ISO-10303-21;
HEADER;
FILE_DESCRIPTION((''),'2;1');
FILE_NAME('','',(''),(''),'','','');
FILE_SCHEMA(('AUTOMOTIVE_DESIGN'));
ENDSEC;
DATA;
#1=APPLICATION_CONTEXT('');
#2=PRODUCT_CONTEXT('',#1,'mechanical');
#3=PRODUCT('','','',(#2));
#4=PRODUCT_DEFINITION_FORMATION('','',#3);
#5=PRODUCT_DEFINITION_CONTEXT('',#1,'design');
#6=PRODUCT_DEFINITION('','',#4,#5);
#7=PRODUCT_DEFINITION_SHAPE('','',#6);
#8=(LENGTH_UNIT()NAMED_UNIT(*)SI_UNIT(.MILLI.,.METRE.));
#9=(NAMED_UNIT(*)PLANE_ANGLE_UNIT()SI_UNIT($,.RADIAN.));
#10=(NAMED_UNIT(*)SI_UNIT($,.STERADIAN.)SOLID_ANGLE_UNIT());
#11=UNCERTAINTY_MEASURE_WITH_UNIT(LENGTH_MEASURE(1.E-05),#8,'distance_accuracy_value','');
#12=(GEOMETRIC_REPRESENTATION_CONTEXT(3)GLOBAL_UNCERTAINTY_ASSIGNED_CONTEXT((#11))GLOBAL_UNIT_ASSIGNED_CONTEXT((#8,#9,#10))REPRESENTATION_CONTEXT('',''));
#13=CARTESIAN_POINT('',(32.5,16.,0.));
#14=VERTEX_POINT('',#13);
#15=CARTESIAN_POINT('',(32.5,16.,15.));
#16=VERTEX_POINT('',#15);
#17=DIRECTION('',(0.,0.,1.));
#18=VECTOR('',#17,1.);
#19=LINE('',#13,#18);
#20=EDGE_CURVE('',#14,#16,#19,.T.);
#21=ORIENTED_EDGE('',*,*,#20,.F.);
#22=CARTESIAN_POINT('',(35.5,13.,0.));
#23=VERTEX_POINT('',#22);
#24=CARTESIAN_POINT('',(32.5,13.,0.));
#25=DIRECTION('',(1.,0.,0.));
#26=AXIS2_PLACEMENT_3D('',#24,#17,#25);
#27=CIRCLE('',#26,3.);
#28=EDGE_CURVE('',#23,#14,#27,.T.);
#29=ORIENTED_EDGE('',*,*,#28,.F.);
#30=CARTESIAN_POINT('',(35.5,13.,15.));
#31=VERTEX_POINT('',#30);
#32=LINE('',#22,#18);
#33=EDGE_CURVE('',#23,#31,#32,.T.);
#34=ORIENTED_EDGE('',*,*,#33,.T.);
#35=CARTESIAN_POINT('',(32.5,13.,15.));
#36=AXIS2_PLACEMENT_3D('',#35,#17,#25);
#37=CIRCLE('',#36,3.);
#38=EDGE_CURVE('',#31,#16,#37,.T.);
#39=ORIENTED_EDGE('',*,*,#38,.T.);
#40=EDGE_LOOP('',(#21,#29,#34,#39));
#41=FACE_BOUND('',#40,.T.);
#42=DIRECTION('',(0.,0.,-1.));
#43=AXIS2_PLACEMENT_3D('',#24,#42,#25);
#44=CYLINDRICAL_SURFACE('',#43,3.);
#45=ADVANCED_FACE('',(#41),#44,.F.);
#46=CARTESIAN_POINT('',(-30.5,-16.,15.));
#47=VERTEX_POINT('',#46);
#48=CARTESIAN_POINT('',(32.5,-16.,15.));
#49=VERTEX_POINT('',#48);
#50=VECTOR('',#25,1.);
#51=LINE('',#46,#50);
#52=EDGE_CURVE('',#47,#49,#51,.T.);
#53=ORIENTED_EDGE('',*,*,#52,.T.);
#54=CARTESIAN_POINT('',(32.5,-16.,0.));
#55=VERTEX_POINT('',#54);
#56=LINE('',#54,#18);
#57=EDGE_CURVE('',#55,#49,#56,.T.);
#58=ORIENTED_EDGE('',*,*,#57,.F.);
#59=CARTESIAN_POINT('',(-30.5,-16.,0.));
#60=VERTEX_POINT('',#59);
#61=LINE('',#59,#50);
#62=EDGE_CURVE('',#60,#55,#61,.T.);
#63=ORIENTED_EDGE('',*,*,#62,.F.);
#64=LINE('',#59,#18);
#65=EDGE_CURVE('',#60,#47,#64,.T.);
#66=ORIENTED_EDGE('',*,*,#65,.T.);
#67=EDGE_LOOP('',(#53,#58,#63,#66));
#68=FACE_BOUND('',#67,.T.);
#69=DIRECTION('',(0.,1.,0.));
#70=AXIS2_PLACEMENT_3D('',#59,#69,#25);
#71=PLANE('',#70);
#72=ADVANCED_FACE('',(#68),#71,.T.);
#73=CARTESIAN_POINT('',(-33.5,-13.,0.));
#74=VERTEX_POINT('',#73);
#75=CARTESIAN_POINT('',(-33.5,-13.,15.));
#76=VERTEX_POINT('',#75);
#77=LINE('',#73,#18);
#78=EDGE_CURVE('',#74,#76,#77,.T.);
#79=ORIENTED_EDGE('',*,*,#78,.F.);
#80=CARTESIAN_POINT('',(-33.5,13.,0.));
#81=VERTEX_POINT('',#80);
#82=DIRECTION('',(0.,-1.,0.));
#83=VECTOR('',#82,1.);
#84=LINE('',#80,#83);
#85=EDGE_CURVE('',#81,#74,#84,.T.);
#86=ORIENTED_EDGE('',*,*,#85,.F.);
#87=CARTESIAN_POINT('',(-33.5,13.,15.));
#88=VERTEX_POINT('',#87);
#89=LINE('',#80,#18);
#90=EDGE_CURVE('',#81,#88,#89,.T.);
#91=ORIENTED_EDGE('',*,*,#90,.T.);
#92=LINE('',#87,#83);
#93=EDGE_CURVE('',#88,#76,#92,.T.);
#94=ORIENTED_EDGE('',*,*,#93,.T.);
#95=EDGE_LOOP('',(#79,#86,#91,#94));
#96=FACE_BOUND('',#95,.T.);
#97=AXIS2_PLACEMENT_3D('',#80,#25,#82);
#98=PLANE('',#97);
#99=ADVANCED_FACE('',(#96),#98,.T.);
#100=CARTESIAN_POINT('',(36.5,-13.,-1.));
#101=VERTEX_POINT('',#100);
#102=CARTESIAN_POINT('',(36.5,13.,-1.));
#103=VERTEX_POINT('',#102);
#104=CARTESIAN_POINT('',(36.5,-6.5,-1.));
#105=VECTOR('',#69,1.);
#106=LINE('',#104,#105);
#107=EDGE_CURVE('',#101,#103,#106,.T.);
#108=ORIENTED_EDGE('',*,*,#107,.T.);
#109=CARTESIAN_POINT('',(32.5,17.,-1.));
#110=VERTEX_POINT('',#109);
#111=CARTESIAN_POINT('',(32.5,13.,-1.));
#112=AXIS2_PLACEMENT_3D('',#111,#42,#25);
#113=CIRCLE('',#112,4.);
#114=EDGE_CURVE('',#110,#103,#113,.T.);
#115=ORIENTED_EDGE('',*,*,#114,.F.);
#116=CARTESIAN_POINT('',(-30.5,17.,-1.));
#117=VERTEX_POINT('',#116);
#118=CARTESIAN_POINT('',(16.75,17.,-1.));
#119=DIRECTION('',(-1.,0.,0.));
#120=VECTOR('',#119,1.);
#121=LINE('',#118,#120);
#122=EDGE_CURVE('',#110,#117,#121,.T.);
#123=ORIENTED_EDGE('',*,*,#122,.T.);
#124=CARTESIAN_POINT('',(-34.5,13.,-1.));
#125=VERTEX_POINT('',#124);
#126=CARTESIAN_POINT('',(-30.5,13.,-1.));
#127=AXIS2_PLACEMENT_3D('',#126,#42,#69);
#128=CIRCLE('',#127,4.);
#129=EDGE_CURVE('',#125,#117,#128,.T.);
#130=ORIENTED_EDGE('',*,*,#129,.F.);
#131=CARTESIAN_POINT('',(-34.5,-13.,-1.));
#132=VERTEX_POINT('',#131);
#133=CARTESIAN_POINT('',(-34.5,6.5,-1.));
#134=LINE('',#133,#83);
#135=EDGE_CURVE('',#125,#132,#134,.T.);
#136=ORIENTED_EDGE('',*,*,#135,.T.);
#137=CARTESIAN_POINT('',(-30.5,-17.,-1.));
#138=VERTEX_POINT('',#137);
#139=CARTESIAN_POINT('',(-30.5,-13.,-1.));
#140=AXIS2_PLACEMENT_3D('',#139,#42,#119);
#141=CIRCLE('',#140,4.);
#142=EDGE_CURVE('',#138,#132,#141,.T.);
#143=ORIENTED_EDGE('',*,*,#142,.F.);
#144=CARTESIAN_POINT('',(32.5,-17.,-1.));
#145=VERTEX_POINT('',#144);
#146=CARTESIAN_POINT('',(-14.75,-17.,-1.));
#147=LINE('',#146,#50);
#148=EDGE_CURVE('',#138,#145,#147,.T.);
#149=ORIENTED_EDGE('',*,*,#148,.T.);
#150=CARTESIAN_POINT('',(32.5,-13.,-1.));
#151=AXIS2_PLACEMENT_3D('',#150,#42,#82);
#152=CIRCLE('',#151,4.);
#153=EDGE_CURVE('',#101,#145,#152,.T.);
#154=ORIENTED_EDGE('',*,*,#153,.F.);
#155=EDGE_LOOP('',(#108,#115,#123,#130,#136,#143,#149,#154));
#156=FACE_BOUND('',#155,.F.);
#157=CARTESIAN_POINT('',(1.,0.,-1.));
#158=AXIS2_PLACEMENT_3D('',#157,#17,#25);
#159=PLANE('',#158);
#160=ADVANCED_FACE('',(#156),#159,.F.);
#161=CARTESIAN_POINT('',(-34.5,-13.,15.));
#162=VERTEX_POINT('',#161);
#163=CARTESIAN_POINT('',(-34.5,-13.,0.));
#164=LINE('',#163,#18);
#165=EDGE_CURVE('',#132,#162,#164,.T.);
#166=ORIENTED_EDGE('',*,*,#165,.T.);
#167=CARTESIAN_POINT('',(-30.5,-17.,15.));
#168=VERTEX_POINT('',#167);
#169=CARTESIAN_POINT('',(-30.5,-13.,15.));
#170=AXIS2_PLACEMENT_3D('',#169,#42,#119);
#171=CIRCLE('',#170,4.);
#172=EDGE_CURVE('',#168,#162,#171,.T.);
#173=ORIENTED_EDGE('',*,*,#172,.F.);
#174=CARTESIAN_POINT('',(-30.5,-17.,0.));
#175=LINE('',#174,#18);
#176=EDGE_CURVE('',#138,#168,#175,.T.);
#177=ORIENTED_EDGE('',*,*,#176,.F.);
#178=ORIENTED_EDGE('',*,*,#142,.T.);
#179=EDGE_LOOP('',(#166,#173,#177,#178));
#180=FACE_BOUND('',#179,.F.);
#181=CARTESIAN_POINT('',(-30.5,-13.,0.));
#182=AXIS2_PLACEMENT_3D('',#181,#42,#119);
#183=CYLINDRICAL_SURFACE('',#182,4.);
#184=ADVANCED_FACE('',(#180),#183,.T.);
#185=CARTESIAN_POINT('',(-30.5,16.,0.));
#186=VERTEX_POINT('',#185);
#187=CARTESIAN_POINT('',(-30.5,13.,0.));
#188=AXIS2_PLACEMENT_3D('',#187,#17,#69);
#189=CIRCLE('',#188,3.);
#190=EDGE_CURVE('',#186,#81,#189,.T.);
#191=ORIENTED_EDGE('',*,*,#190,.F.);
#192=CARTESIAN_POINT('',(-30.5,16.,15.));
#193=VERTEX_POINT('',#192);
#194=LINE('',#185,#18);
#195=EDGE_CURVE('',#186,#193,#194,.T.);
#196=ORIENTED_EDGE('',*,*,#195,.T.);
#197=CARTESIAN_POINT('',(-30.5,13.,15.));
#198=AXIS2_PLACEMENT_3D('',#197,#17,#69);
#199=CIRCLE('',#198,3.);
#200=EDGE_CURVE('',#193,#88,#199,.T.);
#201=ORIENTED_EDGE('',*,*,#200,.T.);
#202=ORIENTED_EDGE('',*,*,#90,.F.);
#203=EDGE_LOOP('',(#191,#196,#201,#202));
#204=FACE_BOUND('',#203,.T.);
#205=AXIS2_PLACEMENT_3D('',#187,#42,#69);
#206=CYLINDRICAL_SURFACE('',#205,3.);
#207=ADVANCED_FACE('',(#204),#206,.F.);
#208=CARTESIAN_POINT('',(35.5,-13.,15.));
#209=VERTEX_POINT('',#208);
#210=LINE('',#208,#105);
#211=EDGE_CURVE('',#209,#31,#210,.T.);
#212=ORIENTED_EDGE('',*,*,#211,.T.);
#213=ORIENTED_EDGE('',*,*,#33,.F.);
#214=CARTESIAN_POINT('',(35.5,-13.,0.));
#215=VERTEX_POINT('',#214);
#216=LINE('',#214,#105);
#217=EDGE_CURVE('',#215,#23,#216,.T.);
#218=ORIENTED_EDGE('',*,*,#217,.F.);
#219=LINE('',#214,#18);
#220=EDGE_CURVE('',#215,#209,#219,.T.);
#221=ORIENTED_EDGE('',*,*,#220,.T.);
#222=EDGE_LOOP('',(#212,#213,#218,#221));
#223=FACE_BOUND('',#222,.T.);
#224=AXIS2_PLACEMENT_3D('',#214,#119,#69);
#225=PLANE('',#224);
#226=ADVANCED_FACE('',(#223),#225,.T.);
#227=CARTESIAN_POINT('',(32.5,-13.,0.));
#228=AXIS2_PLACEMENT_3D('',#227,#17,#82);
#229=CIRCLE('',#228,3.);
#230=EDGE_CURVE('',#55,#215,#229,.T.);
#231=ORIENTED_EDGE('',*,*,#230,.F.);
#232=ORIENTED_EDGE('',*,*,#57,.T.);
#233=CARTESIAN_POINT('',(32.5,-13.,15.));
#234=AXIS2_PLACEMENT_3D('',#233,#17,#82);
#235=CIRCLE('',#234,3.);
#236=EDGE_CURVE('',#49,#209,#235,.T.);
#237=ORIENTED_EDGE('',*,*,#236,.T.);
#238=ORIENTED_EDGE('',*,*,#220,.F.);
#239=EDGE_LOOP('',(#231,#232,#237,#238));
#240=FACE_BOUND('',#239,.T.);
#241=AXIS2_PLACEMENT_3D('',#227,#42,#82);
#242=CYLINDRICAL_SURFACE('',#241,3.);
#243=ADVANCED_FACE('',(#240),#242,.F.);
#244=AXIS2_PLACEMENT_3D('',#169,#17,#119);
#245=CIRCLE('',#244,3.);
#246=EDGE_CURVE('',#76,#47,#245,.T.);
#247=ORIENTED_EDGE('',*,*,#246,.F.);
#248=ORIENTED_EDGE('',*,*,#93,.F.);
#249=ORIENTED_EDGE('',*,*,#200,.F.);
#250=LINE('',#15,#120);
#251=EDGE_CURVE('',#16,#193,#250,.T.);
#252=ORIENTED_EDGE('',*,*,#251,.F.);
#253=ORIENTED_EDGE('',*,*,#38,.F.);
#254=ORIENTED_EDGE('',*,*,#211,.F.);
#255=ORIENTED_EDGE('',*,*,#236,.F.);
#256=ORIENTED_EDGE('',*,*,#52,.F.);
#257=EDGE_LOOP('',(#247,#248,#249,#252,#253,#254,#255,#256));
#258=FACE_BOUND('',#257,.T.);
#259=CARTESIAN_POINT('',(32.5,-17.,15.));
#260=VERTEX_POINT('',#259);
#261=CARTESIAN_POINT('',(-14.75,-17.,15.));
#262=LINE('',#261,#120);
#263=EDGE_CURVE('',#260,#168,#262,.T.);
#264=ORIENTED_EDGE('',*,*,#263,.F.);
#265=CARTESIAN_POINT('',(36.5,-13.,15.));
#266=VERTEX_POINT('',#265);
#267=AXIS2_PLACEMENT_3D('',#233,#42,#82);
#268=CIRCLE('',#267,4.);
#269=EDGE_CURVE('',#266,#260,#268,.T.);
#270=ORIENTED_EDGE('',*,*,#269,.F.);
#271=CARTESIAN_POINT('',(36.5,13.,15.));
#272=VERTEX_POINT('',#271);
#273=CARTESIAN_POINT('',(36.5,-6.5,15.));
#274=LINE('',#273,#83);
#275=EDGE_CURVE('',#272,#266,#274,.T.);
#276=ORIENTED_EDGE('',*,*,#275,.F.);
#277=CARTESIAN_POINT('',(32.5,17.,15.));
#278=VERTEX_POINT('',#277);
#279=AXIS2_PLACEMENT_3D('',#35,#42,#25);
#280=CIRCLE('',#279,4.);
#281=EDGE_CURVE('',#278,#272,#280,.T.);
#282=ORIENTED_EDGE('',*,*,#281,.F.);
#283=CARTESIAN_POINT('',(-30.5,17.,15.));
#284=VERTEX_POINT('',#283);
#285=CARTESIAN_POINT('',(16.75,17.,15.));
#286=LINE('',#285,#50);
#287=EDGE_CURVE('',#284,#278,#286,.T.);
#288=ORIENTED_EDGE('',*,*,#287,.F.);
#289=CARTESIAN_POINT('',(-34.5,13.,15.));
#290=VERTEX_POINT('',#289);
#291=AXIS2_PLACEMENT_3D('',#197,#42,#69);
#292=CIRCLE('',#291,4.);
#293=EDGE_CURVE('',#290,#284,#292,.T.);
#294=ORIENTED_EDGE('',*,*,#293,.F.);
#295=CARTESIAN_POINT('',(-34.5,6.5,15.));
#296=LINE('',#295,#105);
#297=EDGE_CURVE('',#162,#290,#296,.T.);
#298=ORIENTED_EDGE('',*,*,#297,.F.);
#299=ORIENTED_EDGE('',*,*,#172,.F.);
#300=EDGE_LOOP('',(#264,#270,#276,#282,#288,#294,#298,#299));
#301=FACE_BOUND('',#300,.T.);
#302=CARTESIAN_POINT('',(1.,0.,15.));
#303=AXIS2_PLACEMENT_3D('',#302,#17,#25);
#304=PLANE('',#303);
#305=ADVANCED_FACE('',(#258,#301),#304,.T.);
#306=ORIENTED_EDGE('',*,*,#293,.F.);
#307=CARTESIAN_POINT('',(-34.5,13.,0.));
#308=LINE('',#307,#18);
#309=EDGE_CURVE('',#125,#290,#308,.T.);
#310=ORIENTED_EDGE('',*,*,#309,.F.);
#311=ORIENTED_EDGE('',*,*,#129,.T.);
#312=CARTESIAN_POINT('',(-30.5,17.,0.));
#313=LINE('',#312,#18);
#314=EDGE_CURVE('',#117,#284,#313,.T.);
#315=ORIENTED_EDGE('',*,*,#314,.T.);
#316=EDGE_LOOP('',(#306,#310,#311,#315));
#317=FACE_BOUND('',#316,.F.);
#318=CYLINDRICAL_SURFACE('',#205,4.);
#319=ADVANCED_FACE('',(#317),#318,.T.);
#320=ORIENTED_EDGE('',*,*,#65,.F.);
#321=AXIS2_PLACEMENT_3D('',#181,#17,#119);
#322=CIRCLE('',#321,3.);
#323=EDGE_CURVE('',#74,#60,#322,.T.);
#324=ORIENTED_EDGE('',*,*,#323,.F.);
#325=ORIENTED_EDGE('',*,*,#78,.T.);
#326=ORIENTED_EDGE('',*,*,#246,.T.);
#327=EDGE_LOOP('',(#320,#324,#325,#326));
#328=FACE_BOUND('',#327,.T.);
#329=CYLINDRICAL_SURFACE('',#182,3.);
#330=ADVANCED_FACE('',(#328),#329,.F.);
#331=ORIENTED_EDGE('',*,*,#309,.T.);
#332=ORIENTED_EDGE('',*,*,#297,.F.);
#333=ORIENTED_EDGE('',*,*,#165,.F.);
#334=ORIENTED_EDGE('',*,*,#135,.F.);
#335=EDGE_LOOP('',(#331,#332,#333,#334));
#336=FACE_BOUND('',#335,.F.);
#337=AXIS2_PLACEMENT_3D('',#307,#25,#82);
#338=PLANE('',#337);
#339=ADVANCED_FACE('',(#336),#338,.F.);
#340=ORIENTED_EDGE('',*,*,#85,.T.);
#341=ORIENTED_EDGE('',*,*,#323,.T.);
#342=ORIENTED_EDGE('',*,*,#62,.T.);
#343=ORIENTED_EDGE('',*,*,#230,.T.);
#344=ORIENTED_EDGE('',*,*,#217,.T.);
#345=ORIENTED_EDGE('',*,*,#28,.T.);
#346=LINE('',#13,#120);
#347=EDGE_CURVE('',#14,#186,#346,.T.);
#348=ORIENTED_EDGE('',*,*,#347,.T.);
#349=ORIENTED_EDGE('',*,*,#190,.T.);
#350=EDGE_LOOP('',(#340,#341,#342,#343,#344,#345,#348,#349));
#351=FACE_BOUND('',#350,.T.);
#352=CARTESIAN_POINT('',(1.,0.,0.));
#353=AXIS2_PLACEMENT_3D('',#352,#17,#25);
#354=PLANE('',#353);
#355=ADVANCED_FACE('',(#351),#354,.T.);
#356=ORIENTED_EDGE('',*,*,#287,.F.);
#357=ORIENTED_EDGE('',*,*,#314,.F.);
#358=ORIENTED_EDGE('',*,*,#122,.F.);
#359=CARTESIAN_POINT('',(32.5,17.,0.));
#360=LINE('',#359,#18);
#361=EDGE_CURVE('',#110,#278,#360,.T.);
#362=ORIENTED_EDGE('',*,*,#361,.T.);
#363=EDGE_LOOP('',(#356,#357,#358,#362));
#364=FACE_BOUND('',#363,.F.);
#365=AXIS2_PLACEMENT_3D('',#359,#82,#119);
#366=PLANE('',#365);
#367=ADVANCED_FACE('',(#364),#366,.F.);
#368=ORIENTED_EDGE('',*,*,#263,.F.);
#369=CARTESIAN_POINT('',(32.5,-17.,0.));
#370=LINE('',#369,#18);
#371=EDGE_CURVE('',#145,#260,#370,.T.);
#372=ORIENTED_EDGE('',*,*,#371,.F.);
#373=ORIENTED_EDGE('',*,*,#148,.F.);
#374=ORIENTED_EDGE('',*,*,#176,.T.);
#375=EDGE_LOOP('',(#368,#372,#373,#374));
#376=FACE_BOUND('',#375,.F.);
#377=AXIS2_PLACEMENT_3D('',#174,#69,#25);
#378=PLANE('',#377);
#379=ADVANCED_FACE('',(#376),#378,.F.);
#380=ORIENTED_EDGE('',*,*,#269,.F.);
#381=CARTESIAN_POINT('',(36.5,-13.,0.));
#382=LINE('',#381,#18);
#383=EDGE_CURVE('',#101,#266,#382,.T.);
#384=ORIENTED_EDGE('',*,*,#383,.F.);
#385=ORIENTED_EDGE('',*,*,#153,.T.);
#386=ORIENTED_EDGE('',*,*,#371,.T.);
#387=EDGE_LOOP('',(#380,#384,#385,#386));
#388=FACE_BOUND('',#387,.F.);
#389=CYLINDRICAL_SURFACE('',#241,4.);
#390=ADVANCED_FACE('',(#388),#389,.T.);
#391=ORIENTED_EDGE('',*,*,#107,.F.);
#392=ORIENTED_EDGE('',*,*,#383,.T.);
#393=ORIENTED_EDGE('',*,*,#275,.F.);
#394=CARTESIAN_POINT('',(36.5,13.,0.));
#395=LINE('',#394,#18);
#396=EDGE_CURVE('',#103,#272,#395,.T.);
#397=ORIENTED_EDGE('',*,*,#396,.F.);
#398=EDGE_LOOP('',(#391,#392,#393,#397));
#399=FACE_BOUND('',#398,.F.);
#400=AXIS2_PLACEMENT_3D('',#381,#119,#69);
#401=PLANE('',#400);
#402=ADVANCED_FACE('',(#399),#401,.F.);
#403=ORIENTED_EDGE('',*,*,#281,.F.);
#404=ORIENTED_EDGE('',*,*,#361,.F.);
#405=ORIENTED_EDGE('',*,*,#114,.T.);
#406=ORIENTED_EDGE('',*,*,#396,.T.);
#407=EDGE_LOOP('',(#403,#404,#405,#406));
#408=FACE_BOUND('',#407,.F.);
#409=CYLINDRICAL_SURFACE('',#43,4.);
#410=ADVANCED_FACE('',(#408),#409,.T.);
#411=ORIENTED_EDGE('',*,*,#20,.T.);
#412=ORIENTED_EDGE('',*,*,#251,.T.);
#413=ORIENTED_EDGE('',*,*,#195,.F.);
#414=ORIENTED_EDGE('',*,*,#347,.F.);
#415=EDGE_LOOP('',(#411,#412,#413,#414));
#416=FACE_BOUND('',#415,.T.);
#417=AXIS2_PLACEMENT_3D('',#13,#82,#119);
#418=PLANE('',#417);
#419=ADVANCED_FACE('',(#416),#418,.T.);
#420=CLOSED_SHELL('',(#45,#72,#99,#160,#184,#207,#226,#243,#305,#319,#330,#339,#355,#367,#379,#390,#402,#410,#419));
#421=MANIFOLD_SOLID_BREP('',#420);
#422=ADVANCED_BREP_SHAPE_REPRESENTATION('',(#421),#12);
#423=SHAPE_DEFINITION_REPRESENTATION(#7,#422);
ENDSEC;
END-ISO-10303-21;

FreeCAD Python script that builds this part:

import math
import FreeCAD as App
import Part
import Sketcher

V = App.Vector
Q = App.Units.Quantity


def faces_at(feature, points):
    """Names of the faces that lie closest to the given points."""
    faces = feature.Shape.Faces
    near = lambda p: min(range(len(faces)), key=lambda i: faces[i].distToShape(Part.Vertex(*p))[0])
    return sorted({f"Face{near(p) + 1}" for p in points})

doc = App.newDocument("Part")
body = doc.addObject("PartDesign::Body", "Body")

# Sketch on XY plane
sketch1 = body.newObject("Sketcher::SketchObject", "Sketch")
sketch1.AttachmentSupport = (doc.getObject("XY_Plane"), [""])
sketch1.MapMode = "FlatFace"
sketch1.addGeometry([
    Part.LineSegment(V(35.5, -13, 0), V(35.5, 13, 0)),  # 0
    Part.ArcOfCircle(Part.Circle(V(32.5, 13, 0), V(0, 0, 1), 3), math.radians(0), math.radians(90)),  # 1
    Part.LineSegment(V(32.5, 16, 0), V(-30.5, 16, 0)),  # 2
    Part.ArcOfCircle(Part.Circle(V(-30.5, 13, 0), V(0, 0, 1), 3), math.radians(90), math.radians(180)),  # 3
    Part.LineSegment(V(-33.5, 13, 0), V(-33.5, -13, 0)),  # 4
    Part.ArcOfCircle(Part.Circle(V(-30.5, -13, 0), V(0, 0, 1), 3), math.radians(180), math.radians(270)),  # 5
    Part.LineSegment(V(-30.5, -16, 0), V(32.5, -16, 0)),  # 6
    Part.ArcOfCircle(Part.Circle(V(32.5, -13, 0), V(0, 0, 1), 3), math.radians(-90), math.radians(0)),  # 7
], False)
sketch1.addConstraint([
    Sketcher.Constraint("Tangent", 0, 2, 1, 1),
    Sketcher.Constraint("Tangent", 1, 2, 2, 1),
    Sketcher.Constraint("Tangent", 2, 2, 3, 1),
    Sketcher.Constraint("Tangent", 3, 2, 4, 1),
    Sketcher.Constraint("Tangent", 4, 2, 5, 1),
    Sketcher.Constraint("Tangent", 5, 2, 6, 1),
    Sketcher.Constraint("Tangent", 6, 2, 7, 1),
    Sketcher.Constraint("Tangent", 7, 2, 0, 1),
    Sketcher.Constraint("Vertical", 0),
    Sketcher.Constraint("Horizontal", 2),
    Sketcher.Constraint("Vertical", 4),
    Sketcher.Constraint("Horizontal", 6),
    Sketcher.Constraint("Equal", 1, 3),
    Sketcher.Constraint("Equal", 3, 5),
    Sketcher.Constraint("Equal", 5, 7),
    Sketcher.Constraint("Radius", 1, Q("3 mm")),
    Sketcher.Constraint("DistanceX", 2, 2, 2, 1, Q("63 mm")),
    Sketcher.Constraint("DistanceY", 0, 1, 0, 2, Q("26 mm")),
    Sketcher.Constraint("DistanceY", -1, 1, 1, 3, Q("13 mm")),
    Sketcher.Constraint("DistanceX", -1, 1, 1, 3, Q("32.5 mm")),
])
pad1 = body.newObject("PartDesign::Pad", "Pad")
pad1.Profile = sketch1
pad1.Length = 15
doc.recompute()

thickness = body.newObject("PartDesign::Thickness", "Thickness")
thickness.Base = (pad1, faces_at(pad1, [(1, 0, 15)]))
thickness.Value = 1
thickness.Reversed = False
thickness.Join = "Intersection"

doc.recompute()
